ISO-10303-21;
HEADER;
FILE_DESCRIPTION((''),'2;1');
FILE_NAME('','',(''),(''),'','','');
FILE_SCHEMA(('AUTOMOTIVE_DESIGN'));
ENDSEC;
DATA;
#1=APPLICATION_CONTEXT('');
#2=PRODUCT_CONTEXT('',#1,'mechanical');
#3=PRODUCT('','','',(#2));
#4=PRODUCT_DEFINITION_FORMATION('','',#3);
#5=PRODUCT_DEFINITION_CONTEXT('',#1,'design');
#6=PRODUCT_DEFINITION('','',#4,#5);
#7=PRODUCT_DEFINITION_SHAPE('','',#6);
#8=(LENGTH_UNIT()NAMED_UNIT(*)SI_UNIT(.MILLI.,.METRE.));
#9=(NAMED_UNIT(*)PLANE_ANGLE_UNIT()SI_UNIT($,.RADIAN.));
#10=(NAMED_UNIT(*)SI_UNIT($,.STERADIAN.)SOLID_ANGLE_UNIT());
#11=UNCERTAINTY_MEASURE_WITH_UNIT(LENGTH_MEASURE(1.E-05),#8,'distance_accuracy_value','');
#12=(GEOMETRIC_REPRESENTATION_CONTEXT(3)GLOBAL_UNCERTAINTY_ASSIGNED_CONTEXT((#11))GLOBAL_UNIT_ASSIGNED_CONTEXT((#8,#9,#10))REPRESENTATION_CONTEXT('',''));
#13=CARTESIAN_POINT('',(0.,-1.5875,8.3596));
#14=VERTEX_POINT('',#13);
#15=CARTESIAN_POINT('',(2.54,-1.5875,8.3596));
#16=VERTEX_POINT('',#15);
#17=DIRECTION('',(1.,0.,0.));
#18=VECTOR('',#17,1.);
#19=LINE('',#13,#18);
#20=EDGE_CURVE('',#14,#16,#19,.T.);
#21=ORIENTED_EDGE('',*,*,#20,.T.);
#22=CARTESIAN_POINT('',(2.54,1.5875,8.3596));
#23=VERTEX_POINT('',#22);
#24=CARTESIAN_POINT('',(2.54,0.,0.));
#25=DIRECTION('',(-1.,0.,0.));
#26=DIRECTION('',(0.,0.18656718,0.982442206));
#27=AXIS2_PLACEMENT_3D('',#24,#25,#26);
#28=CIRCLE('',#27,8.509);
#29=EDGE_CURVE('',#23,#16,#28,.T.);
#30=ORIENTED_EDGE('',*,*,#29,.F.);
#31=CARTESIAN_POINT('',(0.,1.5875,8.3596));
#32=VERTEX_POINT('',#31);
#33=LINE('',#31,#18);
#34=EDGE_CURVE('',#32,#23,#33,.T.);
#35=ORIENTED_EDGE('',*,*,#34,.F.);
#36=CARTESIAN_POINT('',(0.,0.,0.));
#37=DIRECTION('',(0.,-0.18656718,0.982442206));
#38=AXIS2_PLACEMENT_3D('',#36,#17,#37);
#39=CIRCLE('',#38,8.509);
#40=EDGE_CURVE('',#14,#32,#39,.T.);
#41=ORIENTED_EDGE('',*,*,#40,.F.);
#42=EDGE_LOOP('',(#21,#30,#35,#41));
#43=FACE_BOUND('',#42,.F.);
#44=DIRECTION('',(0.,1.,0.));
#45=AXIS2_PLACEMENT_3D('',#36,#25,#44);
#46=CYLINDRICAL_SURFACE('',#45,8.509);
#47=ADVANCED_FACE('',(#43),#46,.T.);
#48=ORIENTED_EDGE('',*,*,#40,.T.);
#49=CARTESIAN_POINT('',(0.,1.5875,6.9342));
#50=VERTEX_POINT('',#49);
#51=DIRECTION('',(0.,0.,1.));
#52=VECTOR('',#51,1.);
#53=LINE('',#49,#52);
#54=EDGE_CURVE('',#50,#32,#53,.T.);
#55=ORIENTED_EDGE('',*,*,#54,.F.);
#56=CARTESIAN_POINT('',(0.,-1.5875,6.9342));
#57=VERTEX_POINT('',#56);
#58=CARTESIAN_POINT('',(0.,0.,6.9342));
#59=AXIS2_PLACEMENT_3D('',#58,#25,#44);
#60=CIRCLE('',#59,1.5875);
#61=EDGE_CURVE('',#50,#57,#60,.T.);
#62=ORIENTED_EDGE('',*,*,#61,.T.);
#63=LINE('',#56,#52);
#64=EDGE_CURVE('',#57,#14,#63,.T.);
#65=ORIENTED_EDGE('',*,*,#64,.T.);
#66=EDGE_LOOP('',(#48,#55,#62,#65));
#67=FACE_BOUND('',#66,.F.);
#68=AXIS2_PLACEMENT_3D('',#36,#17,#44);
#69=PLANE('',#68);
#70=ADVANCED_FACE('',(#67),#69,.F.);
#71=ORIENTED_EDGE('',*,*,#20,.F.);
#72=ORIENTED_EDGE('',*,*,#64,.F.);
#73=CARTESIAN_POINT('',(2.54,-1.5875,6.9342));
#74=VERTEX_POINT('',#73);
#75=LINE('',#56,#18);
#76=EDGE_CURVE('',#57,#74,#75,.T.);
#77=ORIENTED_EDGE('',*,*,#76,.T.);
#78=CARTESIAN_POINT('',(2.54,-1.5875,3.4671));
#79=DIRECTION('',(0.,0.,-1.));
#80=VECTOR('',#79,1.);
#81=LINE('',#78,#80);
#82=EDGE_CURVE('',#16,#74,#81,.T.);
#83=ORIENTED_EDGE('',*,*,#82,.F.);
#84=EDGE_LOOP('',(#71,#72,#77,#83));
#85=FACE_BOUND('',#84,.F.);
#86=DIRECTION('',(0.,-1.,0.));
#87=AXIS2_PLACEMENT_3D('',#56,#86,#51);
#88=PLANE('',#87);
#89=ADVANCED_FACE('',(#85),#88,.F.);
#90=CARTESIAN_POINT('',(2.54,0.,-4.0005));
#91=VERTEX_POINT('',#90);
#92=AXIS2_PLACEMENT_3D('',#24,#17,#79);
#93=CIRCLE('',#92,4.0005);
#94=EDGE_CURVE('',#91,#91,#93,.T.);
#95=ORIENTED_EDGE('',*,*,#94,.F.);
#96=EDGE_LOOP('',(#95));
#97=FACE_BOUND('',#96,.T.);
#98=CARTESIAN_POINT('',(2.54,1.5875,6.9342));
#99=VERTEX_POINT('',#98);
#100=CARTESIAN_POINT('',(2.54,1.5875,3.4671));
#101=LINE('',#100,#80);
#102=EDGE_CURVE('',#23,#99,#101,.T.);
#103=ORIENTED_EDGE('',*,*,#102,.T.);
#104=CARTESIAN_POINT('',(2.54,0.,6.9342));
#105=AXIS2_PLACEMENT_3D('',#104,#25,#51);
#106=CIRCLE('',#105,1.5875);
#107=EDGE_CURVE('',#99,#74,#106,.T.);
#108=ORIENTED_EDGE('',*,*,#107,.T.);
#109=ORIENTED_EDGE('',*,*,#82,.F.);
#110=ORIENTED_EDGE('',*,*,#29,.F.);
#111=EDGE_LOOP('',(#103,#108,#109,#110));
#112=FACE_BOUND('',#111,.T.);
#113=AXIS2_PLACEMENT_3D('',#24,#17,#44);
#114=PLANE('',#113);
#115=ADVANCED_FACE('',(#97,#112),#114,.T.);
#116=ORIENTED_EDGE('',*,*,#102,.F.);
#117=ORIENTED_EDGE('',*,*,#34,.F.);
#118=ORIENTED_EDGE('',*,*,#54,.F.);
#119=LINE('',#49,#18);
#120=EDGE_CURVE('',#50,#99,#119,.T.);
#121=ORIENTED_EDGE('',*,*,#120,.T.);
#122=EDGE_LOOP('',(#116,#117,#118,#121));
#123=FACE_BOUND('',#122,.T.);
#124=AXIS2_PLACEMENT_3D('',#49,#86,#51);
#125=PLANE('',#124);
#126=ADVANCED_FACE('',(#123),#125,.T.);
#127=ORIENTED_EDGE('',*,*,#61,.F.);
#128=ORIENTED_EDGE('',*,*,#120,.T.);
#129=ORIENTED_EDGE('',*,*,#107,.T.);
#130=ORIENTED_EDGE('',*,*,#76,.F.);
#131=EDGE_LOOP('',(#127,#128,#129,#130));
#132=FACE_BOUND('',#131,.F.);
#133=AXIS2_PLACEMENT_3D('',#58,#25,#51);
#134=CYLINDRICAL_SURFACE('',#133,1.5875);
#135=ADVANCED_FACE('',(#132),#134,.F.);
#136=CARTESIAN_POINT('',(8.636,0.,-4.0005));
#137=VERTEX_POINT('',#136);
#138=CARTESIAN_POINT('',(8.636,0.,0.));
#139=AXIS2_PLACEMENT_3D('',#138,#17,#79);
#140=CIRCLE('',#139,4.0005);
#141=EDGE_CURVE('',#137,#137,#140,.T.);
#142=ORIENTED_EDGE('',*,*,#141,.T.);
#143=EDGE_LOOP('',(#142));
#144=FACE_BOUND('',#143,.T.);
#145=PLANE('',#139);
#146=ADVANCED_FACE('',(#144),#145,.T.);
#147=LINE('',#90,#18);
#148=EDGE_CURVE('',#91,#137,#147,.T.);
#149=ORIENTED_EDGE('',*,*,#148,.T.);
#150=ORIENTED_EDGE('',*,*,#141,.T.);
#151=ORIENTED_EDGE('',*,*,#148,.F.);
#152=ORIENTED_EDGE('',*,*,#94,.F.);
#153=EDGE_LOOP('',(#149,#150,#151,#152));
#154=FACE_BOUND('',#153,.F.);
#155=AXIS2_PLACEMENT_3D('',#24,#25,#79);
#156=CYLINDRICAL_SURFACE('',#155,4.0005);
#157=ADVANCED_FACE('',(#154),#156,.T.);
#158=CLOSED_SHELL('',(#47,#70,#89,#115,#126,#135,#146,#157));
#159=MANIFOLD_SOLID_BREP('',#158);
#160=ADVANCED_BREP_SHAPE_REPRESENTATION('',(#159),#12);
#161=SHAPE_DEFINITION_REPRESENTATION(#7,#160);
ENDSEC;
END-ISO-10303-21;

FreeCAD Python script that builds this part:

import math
import FreeCAD as App
import Part
import Sketcher

V = App.Vector
Q = App.Units.Quantity

doc = App.newDocument("Part")
body = doc.addObject("PartDesign::Body", "Body")

# Sketch on YZ plane
sketch1 = doc.addObject("Sketcher::SketchObject", "Sketch")
body.addObject(sketch1)
sketch1.AttachmentSupport = (doc.YZ_Plane, [""])
sketch1.MapMode = "FlatFace"
sketch1.addGeometry(Part.Circle(V(0, 0, 0), V(0, 0, 1), 9), False)
sketch1.addConstraint(Sketcher.Constraint("Coincident", 0, 3, -1, 1))
sketch1.addConstraint(Sketcher.Constraint("Diameter", 0, Q("0.67 in")))
pad1 = doc.addObject("PartDesign::Pad", "Pad")
body.addObject(pad1)
pad1.Profile = sketch1
pad1.Length = Q("0.1 in")

# Sketch on YZ plane
sketch2 = doc.addObject("Sketcher::SketchObject", "Sketch001")
body.addObject(sketch2)
sketch2.AttachmentSupport = (doc.YZ_Plane, [""])
sketch2.MapMode = "FlatFace"
sketch2.AttachmentOffset = App.Placement(V(0, 0, 0.1 * 25.4), App.Rotation())
sketch2.addGeometry(Part.Circle(V(0, 0, 0), V(0, 0, 1), 4), False)
sketch2.addConstraint(Sketcher.Constraint("Coincident", 0, 3, -1, 1))
sketch2.addConstraint(Sketcher.Constraint("Diameter", 0, Q("0.315 in")))
pad2 = doc.addObject("PartDesign::Pad", "Pad001")
body.addObject(pad2)
pad2.Profile = sketch2
pad2.Length = Q("0.24 in")

# Sketch on YZ plane
sketch3 = doc.addObject("Sketcher::SketchObject", "Sketch002")
body.addObject(sketch3)
sketch3.AttachmentSupport = (doc.YZ_Plane, [""])
sketch3.MapMode = "FlatFace"
sketch3.addGeometry(Part.ArcOfCircle(Part.Circle(V(0, 0, 0), V(0, 0, 1), 8.51), math.radians(79.25), math.radians(88.51)), False)
sketch3.addGeometry(Part.LineSegment(V(1.59, 8.36, 0), V(1.59, 6.93, 0)), False)
sketch3.addGeometry(Part.ArcOfCircle(Part.Circle(V(0, 6.93, 0), V(0, 0, 1), 1.59), math.radians(180), math.radians(360)), False)
sketch3.addGeometry(Part.LineSegment(V(-1.59, 6.93, 0), V(-1.59, 8.36, 0)), False)
sketch3.addGeometry(Part.ArcOfCircle(Part.Circle(V(0, 0, 0), V(0, 0, 1), 8.51), math.radians(91.49), math.radians(100.75)), False)
sketch3.addGeometry(Part.ArcOfCircle(Part.Circle(V(0, 6.93, 0), V(0, 0, 1), 1.59), math.radians(81.96), math.radians(98.04)), False)
sketch3.addConstraint(Sketcher.Constraint("Coincident", 0, 1, 1, 1))
sketch3.addConstraint(Sketcher.Constraint("Tangent", 1, 2, 2, 2))
sketch3.addConstraint(Sketcher.Constraint("Tangent", 2, 1, 3, 1))
sketch3.addConstraint(Sketcher.Constraint("Coincident", 3, 2, 4, 2))
sketch3.addConstraint(Sketcher.Constraint("Coincident", 4, 1, 5, 2))
sketch3.addConstraint(Sketcher.Constraint("Coincident", 5, 1, 0, 2))
sketch3.addConstraint(Sketcher.Constraint("Vertical", 1))
sketch3.addConstraint(Sketcher.Constraint("Vertical", 3))
sketch3.addConstraint(Sketcher.Constraint("Coincident", 0, 3, -1, 1))
sketch3.addConstraint(Sketcher.Constraint("Coincident", 4, 3, -1, 1))
sketch3.addConstraint(Sketcher.Constraint("Coincident", 5, 3, 2, 3))
sketch3.addConstraint(Sketcher.Constraint("Equal", 0, 4))
sketch3.addConstraint(Sketcher.Constraint("Equal", 2, 5))
sketch3.addConstraint(Sketcher.Constraint("PointOnObject", 2, 3, -2))
sketch3.addConstraint(Sketcher.Constraint("Radius", 2, Q("0.0625 in")))
sketch3.addConstraint(Sketcher.Constraint("DistanceY", -1, 1, 2, 3, Q("0.273 in")))
sketch3.addConstraint(Sketcher.Constraint("Radius", 0, Q("0.335 in")))
pocket1 = doc.addObject("PartDesign::Pocket", "Pocket")
body.addObject(pocket1)
pocket1.Profile = sketch3
pocket1.Type = "ThroughAll"
pocket1.Reversed = True

doc.recompute()
